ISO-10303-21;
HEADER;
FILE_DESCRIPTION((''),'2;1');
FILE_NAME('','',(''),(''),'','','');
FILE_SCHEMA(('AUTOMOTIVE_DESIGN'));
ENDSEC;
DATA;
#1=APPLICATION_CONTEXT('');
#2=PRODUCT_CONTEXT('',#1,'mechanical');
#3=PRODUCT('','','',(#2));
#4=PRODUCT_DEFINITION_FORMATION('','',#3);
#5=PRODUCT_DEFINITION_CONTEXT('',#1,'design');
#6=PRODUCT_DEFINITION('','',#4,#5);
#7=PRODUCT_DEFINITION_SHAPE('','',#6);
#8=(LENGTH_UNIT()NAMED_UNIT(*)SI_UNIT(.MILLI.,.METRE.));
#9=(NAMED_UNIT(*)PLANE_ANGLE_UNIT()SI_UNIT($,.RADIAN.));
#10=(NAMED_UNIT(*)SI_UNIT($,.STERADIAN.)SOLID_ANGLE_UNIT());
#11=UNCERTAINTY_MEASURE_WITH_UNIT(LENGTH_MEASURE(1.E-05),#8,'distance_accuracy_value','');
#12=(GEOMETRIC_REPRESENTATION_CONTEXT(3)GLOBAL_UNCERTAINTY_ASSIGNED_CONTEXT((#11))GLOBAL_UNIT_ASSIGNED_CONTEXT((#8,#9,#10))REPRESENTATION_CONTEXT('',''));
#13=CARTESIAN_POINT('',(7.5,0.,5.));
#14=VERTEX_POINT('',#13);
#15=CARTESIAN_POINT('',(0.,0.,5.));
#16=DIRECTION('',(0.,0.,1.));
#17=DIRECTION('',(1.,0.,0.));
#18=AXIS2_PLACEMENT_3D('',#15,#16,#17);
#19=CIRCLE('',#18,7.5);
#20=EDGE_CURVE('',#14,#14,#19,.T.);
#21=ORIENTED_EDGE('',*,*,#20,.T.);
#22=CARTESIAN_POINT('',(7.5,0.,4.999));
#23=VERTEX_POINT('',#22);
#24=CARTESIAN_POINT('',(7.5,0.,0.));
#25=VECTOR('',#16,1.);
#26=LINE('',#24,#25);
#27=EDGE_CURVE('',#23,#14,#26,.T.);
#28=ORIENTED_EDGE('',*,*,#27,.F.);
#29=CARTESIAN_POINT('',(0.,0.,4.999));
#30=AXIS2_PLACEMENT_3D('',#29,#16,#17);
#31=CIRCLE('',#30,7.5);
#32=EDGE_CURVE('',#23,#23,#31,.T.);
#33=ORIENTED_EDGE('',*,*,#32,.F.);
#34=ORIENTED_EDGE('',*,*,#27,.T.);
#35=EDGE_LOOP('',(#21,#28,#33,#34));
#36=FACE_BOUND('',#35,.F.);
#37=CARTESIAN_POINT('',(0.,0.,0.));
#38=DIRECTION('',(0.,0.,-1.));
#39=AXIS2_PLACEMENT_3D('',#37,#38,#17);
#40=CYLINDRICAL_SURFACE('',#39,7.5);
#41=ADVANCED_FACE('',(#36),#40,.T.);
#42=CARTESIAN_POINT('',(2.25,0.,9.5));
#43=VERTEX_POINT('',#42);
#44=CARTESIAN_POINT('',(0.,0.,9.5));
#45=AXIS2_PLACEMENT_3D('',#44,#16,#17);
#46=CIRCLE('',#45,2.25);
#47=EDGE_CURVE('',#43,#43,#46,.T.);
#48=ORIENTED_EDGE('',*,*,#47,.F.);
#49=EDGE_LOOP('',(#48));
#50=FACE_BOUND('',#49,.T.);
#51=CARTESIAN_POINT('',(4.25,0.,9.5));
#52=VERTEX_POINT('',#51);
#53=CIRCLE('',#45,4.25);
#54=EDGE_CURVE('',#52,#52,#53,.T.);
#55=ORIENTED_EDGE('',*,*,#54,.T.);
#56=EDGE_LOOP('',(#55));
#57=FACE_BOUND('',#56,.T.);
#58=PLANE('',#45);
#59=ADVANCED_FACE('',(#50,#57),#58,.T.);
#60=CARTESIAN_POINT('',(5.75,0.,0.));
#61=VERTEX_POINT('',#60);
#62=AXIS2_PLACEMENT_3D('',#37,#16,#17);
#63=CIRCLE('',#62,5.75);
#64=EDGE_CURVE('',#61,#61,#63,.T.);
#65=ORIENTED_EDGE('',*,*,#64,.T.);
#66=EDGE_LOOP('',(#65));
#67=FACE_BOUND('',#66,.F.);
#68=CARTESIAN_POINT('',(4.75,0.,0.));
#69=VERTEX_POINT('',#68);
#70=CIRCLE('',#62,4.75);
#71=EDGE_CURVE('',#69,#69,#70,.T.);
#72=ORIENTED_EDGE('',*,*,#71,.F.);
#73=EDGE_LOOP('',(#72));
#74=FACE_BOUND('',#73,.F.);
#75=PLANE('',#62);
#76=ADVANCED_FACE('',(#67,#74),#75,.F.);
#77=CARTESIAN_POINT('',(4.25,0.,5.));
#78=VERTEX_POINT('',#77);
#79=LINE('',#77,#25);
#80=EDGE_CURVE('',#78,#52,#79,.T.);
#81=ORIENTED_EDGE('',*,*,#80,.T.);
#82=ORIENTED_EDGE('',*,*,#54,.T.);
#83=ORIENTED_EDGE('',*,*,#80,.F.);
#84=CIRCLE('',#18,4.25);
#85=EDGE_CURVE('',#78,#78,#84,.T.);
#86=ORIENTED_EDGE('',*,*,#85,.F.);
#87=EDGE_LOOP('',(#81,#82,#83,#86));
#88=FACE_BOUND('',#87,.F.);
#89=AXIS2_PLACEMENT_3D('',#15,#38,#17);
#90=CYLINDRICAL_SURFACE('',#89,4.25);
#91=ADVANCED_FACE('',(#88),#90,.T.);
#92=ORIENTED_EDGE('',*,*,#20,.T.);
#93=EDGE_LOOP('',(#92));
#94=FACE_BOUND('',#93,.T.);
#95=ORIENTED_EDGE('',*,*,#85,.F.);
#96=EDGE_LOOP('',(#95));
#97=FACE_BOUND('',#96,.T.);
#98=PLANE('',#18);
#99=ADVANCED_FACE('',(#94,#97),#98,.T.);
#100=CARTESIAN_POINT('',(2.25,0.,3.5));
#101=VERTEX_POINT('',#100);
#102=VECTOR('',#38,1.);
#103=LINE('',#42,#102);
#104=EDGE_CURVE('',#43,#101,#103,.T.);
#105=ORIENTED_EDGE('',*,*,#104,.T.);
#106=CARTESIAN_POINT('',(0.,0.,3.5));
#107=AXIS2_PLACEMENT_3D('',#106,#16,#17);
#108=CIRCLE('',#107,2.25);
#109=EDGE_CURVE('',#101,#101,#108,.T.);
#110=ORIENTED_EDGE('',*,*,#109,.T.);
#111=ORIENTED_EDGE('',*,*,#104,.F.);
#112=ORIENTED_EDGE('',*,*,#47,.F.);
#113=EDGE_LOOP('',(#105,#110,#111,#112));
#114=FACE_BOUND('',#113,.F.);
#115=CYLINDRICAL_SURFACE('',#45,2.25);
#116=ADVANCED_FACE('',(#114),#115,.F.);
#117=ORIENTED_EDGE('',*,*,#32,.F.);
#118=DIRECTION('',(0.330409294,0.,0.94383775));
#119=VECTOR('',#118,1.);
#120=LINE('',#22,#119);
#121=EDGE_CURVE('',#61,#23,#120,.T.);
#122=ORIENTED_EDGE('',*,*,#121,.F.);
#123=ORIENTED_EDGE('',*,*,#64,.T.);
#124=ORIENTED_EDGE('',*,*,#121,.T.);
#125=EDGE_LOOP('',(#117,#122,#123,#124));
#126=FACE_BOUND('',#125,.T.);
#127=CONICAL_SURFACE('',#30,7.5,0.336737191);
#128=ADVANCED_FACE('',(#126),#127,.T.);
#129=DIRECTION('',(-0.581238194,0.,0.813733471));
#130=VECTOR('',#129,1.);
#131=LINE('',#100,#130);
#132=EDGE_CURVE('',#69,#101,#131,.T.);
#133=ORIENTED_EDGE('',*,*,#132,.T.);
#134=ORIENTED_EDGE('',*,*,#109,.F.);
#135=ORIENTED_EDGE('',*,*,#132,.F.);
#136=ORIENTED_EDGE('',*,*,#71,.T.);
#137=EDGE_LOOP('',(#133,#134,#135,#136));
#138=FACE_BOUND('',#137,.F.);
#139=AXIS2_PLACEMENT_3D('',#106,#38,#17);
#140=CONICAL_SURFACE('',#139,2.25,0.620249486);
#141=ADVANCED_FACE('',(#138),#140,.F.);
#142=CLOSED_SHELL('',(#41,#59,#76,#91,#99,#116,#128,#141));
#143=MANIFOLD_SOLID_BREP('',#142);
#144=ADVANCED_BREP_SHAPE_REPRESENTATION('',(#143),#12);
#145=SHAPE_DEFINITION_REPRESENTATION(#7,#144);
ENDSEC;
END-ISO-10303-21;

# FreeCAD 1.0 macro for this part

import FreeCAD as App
import Part
import Sketcher

V = App.Vector
Q = App.Units.Quantity


def edges_at(feature, points):
    """Names of the edges that pass closest to the given points."""
    edges = feature.Shape.Edges
    near = lambda p: min(range(len(edges)), key=lambda i: edges[i].distToShape(Part.Vertex(*p))[0])
    return sorted({f"Edge{near(p) + 1}" for p in points})

doc = App.newDocument("Part")
body = doc.addObject("PartDesign::Body", "Body")

# Sketch on XY plane
sketch1 = body.newObject("Sketcher::SketchObject", "Sketch")
sketch1.AttachmentSupport = (doc.getObject("XY_Plane"), [""])
sketch1.MapMode = "FlatFace"
sketch1.addGeometry(Part.Circle(V(0, 0, 0), V(0, 0, 1), 8), False)
sketch1.addConstraint(Sketcher.Constraint("Coincident", 0, 3, -1, 1))
sketch1.addConstraint(Sketcher.Constraint("Diameter", 0, Q("15 mm")))
pad1 = body.newObject("PartDesign::Pad", "Pad")
pad1.Profile = sketch1
pad1.Length = 5

# Sketch on XY plane
sketch2 = body.newObject("Sketcher::SketchObject", "Sketch001")
sketch2.AttachmentSupport = (doc.getObject("XY_Plane"), [""])
sketch2.MapMode = "FlatFace"
sketch2.AttachmentOffset = App.Placement(V(0, 0, 5), App.Rotation())
sketch2.addGeometry(Part.Circle(V(0, 0, 0), V(0, 0, 1), 4.2), False)
sketch2.addConstraint(Sketcher.Constraint("Coincident", 0, 3, -1, 1))
sketch2.addConstraint(Sketcher.Constraint("Diameter", 0, Q("8.5 mm")))
pad2 = body.newObject("PartDesign::Pad", "Pad001")
pad2.Profile = sketch2
pad2.Length = 4.5

# Sketch on XY plane
sketch3 = body.newObject("Sketcher::SketchObject", "Sketch002")
sketch3.AttachmentSupport = (doc.getObject("XY_Plane"), [""])
sketch3.MapMode = "FlatFace"
sketch3.AttachmentOffset = App.Placement(V(0, 0, 9.5), App.Rotation())
sketch3.addGeometry(Part.Circle(V(0, 0, 0), V(0, 0, 1), 2.2), False)
sketch3.addConstraint(Sketcher.Constraint("Coincident", 0, 3, -1, 1))
sketch3.addConstraint(Sketcher.Constraint("Diameter", 0, Q("4.5 mm")))
pocket1 = body.newObject("PartDesign::Pocket", "Pocket")
pocket1.Profile = sketch3
pocket1.Type = "ThroughAll"
doc.recompute()

chamfer = body.newObject("PartDesign::Chamfer", "Chamfer")
chamfer.Base = (pocket1, edges_at(pocket1, [(-2.25, 0, 0)]))
chamfer.ChamferType = "Two distances"
chamfer.Size = 2.5
chamfer.Size2 = 3.5
doc.recompute()

chamfer2 = body.newObject("PartDesign::Chamfer", "Chamfer001")
chamfer2.Base = (chamfer, edges_at(chamfer, [(-7.5, 0, 0)]))
chamfer2.ChamferType = "Two distances"
chamfer2.Size = 1.75
chamfer2.Size2 = 4.999

doc.recompute()
